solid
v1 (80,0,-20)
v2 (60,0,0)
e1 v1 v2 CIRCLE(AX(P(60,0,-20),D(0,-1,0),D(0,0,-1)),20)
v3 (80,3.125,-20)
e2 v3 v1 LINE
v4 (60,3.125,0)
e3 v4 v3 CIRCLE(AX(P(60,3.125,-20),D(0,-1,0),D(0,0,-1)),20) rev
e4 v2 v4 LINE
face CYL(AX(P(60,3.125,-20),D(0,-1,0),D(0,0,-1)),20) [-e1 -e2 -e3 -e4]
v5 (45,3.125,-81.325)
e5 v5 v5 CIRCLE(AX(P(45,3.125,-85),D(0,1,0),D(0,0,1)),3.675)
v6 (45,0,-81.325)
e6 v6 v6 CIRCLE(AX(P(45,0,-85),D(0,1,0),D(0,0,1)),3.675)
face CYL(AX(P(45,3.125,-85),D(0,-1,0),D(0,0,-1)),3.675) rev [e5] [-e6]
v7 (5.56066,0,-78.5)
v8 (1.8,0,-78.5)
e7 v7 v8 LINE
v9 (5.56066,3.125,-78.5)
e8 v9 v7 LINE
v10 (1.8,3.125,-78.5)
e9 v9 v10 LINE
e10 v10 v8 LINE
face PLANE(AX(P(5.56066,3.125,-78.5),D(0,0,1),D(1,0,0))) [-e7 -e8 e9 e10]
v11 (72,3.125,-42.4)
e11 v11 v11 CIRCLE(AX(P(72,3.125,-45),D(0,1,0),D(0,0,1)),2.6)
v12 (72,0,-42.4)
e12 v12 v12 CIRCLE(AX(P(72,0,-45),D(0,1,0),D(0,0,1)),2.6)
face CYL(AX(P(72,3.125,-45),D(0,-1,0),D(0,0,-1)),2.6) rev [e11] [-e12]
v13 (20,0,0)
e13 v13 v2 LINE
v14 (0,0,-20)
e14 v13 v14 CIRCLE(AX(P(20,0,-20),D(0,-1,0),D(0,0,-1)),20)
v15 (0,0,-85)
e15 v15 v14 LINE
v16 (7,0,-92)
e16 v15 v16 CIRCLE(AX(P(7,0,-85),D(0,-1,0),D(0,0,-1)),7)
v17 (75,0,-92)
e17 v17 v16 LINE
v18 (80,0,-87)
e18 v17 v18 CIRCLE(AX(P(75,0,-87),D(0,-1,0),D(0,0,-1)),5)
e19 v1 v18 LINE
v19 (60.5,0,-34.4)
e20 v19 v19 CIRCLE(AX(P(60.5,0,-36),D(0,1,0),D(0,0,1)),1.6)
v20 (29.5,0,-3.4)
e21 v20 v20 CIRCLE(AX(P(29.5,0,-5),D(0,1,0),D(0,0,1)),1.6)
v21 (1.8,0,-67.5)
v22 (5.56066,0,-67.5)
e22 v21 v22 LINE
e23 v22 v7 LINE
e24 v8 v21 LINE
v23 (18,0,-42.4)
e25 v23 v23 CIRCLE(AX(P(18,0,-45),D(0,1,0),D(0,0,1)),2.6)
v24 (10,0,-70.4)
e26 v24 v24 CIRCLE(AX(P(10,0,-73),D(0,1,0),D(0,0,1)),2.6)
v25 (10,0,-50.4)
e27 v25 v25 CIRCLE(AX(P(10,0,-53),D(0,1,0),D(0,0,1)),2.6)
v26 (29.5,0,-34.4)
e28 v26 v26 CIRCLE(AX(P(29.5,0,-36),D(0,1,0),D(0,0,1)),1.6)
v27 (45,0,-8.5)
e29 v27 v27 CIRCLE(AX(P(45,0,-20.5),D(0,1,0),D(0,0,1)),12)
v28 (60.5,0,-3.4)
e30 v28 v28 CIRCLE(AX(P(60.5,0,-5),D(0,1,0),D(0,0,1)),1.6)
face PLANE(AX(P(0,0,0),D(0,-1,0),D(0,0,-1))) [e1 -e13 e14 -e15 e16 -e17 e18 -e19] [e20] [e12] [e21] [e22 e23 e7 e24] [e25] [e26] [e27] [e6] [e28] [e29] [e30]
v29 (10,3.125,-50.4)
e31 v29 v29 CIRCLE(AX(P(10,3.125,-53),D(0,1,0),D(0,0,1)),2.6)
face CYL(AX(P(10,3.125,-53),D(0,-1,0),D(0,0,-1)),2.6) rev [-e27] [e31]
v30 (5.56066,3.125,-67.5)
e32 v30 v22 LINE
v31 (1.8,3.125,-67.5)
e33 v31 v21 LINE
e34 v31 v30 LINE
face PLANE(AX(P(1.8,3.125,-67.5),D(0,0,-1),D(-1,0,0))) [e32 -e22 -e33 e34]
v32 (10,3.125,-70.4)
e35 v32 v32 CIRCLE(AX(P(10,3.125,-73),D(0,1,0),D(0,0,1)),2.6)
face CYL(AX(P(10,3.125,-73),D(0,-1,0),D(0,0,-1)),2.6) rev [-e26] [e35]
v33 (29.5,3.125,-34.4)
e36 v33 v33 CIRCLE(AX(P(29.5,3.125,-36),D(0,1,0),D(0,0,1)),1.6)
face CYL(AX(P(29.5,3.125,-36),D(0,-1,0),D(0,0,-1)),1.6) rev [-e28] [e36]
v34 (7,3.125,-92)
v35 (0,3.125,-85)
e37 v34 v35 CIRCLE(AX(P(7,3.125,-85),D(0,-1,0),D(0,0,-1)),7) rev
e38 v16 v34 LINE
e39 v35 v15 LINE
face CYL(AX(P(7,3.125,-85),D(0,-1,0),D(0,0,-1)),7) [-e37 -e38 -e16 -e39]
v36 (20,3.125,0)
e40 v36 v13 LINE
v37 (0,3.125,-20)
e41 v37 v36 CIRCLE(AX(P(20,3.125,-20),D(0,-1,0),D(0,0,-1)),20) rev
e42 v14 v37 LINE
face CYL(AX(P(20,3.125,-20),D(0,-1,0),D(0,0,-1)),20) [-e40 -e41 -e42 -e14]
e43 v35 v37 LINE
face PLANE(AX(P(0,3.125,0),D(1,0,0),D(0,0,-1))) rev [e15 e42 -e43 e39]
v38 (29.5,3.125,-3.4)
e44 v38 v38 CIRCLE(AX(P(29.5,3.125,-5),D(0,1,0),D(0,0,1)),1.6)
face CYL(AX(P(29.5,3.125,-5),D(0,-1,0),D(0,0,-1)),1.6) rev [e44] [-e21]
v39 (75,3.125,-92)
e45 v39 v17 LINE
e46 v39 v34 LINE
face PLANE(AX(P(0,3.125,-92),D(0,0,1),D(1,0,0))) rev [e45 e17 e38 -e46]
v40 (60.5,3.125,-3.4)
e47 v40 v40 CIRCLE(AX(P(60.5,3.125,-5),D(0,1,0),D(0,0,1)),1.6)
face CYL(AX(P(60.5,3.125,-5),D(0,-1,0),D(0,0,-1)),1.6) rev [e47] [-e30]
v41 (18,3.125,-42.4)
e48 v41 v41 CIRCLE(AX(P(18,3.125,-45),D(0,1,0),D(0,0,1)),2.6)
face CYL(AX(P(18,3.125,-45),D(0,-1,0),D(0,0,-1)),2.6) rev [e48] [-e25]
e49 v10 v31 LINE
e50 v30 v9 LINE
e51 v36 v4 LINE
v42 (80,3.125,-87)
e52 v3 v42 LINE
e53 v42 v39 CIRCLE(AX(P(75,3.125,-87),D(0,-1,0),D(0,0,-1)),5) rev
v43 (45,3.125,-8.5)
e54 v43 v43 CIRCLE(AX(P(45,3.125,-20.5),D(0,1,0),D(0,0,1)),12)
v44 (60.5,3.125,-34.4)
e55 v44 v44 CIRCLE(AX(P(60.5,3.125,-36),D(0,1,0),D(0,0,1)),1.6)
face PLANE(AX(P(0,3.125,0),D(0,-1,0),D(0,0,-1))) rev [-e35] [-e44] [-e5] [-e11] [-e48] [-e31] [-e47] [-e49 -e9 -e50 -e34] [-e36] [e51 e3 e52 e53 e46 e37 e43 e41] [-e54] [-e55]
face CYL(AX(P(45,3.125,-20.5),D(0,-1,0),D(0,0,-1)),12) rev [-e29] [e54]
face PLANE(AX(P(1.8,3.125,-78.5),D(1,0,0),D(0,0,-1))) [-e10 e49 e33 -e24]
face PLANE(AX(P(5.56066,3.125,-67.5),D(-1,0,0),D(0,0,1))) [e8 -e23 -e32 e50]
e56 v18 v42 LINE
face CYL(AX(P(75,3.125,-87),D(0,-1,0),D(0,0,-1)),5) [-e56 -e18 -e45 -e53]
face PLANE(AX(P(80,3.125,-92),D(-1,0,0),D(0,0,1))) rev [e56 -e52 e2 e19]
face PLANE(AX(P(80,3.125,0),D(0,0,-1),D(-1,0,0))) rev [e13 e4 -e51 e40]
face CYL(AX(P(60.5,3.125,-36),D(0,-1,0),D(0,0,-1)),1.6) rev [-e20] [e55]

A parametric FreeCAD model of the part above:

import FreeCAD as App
import Part
import Sketcher

V = App.Vector


def edges_at(feature, points):
    """Names of the edges that pass closest to the given points."""
    edges = feature.Shape.Edges
    near = lambda p: min(range(len(edges)), key=lambda i: edges[i].distToShape(Part.Vertex(*p))[0])
    return sorted({f"Edge{near(p) + 1}" for p in points})


def add_polygon(sketch, points):
    """Adds a closed chain of lines whose ends are joined by coincident constraints."""
    first, n = sketch.GeometryCount, len(points)
    for a, b in zip(points, points[1:] + points[:1]):
        sketch.addGeometry(Part.LineSegment(App.Vector(*a, 0), App.Vector(*b, 0)), False)
    for i in range(n):
        sketch.addConstraint(Sketcher.Constraint("Coincident", first + i, 2, first + (i + 1) % n, 1))

doc = App.newDocument("Part")
body = doc.addObject("PartDesign::Body", "Body")

# Sketch on XZ plane
sketch1 = body.newObject("Sketcher::SketchObject", "Sketch")
sketch1.AttachmentSupport = (doc.getObject("XZ_Plane"), [""])
sketch1.MapMode = "FlatFace"
add_polygon(sketch1, [(0, -92), (0, 0), (80, 0), (80, -92)])  # lines 0-3
sketch1.addGeometry(Part.Circle(V(29.5, -5, 0), V(0, 0, 1), 1.6), False)  # 4
sketch1.addGeometry(Part.Circle(V(18, -45, 0), V(0, 0, 1), 2.6), False)  # 5
sketch1.addGeometry(Part.Circle(V(29.5, -36, 0), V(0, 0, 1), 1.6), False)  # 6
sketch1.addGeometry(Part.Circle(V(45, -20.5, 0), V(0, 0, 1), 12), False)  # 7
sketch1.addGeometry(Part.Circle(V(60.5, -5, 0), V(0, 0, 1), 1.6), False)  # 8
sketch1.addGeometry(Part.Circle(V(60.5, -36, 0), V(0, 0, 1), 1.6), False)  # 9
sketch1.addGeometry(Part.Circle(V(72, -45, 0), V(0, 0, 1), 2.6), False)  # 10
sketch1.addGeometry(Part.Circle(V(10, -53, 0), V(0, 0, 1), 2.6), False)  # 11
add_polygon(sketch1, [(5.6, -67.5), (1.8, -67.5), (1.8, -78.5), (5.6, -78.5)])  # lines 12-15
sketch1.addGeometry(Part.Circle(V(10, -73, 0), V(0, 0, 1), 2.6), False)  # 16
sketch1.addGeometry(Part.Circle(V(45, -85, 0), V(0, 0, 1), 3.7), False)  # 17
sketch1.addConstraint([
    Sketcher.Constraint("Vertical", 0),
    Sketcher.Constraint("Horizontal", 1),
    Sketcher.Constraint("Vertical", 2),
    Sketcher.Constraint("Horizontal", 3),
    Sketcher.Constraint("Horizontal", 12),
    Sketcher.Constraint("Vertical", 13),
    Sketcher.Constraint("Horizontal", 14),
    Sketcher.Constraint("Vertical", 15),
    Sketcher.Constraint("Coincident", 0, 2, -1, 1),
    Sketcher.Constraint("Equal", 4, 6),
    Sketcher.Constraint("Equal", 6, 8),
    Sketcher.Constraint("Equal", 8, 9),
    Sketcher.Constraint("Equal", 5, 10),
    Sketcher.Constraint("Equal", 10, 11),
    Sketcher.Constraint("Equal", 11, 16),
    Sketcher.Constraint("Horizontal", 4, 3, 8, 3),
    Sketcher.Constraint("Horizontal", 6, 3, 9, 3),
    Sketcher.Constraint("Horizontal", 5, 3, 10, 3),
    Sketcher.Constraint("Vertical", 4, 3, 6, 3),
    Sketcher.Constraint("Vertical", 8, 3, 9, 3),
    Sketcher.Constraint("Vertical", 11, 3, 16, 3),
    Sketcher.Constraint("Vertical", 7, 3, 17, 3),
    Sketcher.Constraint("Diameter", 7, 24.0),
    Sketcher.Constraint("Diameter", 4, 3.2),
    Sketcher.Constraint("Diameter", 5, 5.2),
    Sketcher.Constraint("Diameter", 17, 7.35),
    Sketcher.Constraint("DistanceX", 1, 1, 1, 2, 80.0),
    Sketcher.Constraint("DistanceY", 0, 1, 0, 2, 92.0),
    Sketcher.Constraint("DistanceY", 13, 2, 13, 1, 11.0),
    Sketcher.Constraint("DistanceY", 4, 3, -1, 1, 5.0),
    Sketcher.Constraint("DistanceX", -1, 1, 5, 3, 18.0),
    Sketcher.Constraint("DistanceY", 5, 3, -1, 1, 45.0),
    Sketcher.Constraint("DistanceY", 6, 3, -1, 1, 36.0),
    Sketcher.Constraint("DistanceX", -1, 1, 7, 3, 45.0),
    Sketcher.Constraint("DistanceX", -1, 1, 10, 3, 72.0),
    Sketcher.Constraint("DistanceX", -1, 1, 11, 3, 10.0),
    Sketcher.Constraint("DistanceY", 11, 3, -1, 1, 53.0),
    Sketcher.Constraint("DistanceY", 16, 3, -1, 1, 73.0),
    Sketcher.Constraint("DistanceY", 17, 3, -1, 1, 85.0),
    Sketcher.Constraint("DistanceX", 4, 3, 8, 3, 31.0),
    Sketcher.Constraint("DistanceX", -1, 1, 4, 3, 29.5),
    Sketcher.Constraint("DistanceY", 7, 3, -1, 1, 20.5),
    Sketcher.Constraint("DistanceX", -1, 1, 12, 2, 1.8),
    Sketcher.Constraint("DistanceY", 12, 2, -1, 1, 67.5),
    Sketcher.Constraint("DistanceX", 12, 2, 12, 1, 3.76066),
])
pad1 = body.newObject("PartDesign::Pad", "Pad")
pad1.Profile = sketch1
pad1.Length = 3.125
pad1.Reversed = True
doc.recompute()

fillet = body.newObject("PartDesign::Fillet", "Fillet")
fillet.Base = (pad1, edges_at(pad1, [(80, 1.562, 0)]))
fillet.Radius = 20
doc.recompute()

fillet2 = body.newObject("PartDesign::Fillet", "Fillet001")
fillet2.Base = (fillet, edges_at(fillet, [(0, 1.562, 0)]))
fillet2.Radius = 20
doc.recompute()

fillet3 = body.newObject("PartDesign::Fillet", "Fillet002")
fillet3.Base = (fillet2, edges_at(fillet2, [(80, 1.562, -92)]))
fillet3.Radius = 5
doc.recompute()

fillet4 = body.newObject("PartDesign::Fillet", "Fillet003")
fillet4.Base = (fillet3, edges_at(fillet3, [(0, 1.562, -92)]))
fillet4.Radius = 7

doc.recompute()
